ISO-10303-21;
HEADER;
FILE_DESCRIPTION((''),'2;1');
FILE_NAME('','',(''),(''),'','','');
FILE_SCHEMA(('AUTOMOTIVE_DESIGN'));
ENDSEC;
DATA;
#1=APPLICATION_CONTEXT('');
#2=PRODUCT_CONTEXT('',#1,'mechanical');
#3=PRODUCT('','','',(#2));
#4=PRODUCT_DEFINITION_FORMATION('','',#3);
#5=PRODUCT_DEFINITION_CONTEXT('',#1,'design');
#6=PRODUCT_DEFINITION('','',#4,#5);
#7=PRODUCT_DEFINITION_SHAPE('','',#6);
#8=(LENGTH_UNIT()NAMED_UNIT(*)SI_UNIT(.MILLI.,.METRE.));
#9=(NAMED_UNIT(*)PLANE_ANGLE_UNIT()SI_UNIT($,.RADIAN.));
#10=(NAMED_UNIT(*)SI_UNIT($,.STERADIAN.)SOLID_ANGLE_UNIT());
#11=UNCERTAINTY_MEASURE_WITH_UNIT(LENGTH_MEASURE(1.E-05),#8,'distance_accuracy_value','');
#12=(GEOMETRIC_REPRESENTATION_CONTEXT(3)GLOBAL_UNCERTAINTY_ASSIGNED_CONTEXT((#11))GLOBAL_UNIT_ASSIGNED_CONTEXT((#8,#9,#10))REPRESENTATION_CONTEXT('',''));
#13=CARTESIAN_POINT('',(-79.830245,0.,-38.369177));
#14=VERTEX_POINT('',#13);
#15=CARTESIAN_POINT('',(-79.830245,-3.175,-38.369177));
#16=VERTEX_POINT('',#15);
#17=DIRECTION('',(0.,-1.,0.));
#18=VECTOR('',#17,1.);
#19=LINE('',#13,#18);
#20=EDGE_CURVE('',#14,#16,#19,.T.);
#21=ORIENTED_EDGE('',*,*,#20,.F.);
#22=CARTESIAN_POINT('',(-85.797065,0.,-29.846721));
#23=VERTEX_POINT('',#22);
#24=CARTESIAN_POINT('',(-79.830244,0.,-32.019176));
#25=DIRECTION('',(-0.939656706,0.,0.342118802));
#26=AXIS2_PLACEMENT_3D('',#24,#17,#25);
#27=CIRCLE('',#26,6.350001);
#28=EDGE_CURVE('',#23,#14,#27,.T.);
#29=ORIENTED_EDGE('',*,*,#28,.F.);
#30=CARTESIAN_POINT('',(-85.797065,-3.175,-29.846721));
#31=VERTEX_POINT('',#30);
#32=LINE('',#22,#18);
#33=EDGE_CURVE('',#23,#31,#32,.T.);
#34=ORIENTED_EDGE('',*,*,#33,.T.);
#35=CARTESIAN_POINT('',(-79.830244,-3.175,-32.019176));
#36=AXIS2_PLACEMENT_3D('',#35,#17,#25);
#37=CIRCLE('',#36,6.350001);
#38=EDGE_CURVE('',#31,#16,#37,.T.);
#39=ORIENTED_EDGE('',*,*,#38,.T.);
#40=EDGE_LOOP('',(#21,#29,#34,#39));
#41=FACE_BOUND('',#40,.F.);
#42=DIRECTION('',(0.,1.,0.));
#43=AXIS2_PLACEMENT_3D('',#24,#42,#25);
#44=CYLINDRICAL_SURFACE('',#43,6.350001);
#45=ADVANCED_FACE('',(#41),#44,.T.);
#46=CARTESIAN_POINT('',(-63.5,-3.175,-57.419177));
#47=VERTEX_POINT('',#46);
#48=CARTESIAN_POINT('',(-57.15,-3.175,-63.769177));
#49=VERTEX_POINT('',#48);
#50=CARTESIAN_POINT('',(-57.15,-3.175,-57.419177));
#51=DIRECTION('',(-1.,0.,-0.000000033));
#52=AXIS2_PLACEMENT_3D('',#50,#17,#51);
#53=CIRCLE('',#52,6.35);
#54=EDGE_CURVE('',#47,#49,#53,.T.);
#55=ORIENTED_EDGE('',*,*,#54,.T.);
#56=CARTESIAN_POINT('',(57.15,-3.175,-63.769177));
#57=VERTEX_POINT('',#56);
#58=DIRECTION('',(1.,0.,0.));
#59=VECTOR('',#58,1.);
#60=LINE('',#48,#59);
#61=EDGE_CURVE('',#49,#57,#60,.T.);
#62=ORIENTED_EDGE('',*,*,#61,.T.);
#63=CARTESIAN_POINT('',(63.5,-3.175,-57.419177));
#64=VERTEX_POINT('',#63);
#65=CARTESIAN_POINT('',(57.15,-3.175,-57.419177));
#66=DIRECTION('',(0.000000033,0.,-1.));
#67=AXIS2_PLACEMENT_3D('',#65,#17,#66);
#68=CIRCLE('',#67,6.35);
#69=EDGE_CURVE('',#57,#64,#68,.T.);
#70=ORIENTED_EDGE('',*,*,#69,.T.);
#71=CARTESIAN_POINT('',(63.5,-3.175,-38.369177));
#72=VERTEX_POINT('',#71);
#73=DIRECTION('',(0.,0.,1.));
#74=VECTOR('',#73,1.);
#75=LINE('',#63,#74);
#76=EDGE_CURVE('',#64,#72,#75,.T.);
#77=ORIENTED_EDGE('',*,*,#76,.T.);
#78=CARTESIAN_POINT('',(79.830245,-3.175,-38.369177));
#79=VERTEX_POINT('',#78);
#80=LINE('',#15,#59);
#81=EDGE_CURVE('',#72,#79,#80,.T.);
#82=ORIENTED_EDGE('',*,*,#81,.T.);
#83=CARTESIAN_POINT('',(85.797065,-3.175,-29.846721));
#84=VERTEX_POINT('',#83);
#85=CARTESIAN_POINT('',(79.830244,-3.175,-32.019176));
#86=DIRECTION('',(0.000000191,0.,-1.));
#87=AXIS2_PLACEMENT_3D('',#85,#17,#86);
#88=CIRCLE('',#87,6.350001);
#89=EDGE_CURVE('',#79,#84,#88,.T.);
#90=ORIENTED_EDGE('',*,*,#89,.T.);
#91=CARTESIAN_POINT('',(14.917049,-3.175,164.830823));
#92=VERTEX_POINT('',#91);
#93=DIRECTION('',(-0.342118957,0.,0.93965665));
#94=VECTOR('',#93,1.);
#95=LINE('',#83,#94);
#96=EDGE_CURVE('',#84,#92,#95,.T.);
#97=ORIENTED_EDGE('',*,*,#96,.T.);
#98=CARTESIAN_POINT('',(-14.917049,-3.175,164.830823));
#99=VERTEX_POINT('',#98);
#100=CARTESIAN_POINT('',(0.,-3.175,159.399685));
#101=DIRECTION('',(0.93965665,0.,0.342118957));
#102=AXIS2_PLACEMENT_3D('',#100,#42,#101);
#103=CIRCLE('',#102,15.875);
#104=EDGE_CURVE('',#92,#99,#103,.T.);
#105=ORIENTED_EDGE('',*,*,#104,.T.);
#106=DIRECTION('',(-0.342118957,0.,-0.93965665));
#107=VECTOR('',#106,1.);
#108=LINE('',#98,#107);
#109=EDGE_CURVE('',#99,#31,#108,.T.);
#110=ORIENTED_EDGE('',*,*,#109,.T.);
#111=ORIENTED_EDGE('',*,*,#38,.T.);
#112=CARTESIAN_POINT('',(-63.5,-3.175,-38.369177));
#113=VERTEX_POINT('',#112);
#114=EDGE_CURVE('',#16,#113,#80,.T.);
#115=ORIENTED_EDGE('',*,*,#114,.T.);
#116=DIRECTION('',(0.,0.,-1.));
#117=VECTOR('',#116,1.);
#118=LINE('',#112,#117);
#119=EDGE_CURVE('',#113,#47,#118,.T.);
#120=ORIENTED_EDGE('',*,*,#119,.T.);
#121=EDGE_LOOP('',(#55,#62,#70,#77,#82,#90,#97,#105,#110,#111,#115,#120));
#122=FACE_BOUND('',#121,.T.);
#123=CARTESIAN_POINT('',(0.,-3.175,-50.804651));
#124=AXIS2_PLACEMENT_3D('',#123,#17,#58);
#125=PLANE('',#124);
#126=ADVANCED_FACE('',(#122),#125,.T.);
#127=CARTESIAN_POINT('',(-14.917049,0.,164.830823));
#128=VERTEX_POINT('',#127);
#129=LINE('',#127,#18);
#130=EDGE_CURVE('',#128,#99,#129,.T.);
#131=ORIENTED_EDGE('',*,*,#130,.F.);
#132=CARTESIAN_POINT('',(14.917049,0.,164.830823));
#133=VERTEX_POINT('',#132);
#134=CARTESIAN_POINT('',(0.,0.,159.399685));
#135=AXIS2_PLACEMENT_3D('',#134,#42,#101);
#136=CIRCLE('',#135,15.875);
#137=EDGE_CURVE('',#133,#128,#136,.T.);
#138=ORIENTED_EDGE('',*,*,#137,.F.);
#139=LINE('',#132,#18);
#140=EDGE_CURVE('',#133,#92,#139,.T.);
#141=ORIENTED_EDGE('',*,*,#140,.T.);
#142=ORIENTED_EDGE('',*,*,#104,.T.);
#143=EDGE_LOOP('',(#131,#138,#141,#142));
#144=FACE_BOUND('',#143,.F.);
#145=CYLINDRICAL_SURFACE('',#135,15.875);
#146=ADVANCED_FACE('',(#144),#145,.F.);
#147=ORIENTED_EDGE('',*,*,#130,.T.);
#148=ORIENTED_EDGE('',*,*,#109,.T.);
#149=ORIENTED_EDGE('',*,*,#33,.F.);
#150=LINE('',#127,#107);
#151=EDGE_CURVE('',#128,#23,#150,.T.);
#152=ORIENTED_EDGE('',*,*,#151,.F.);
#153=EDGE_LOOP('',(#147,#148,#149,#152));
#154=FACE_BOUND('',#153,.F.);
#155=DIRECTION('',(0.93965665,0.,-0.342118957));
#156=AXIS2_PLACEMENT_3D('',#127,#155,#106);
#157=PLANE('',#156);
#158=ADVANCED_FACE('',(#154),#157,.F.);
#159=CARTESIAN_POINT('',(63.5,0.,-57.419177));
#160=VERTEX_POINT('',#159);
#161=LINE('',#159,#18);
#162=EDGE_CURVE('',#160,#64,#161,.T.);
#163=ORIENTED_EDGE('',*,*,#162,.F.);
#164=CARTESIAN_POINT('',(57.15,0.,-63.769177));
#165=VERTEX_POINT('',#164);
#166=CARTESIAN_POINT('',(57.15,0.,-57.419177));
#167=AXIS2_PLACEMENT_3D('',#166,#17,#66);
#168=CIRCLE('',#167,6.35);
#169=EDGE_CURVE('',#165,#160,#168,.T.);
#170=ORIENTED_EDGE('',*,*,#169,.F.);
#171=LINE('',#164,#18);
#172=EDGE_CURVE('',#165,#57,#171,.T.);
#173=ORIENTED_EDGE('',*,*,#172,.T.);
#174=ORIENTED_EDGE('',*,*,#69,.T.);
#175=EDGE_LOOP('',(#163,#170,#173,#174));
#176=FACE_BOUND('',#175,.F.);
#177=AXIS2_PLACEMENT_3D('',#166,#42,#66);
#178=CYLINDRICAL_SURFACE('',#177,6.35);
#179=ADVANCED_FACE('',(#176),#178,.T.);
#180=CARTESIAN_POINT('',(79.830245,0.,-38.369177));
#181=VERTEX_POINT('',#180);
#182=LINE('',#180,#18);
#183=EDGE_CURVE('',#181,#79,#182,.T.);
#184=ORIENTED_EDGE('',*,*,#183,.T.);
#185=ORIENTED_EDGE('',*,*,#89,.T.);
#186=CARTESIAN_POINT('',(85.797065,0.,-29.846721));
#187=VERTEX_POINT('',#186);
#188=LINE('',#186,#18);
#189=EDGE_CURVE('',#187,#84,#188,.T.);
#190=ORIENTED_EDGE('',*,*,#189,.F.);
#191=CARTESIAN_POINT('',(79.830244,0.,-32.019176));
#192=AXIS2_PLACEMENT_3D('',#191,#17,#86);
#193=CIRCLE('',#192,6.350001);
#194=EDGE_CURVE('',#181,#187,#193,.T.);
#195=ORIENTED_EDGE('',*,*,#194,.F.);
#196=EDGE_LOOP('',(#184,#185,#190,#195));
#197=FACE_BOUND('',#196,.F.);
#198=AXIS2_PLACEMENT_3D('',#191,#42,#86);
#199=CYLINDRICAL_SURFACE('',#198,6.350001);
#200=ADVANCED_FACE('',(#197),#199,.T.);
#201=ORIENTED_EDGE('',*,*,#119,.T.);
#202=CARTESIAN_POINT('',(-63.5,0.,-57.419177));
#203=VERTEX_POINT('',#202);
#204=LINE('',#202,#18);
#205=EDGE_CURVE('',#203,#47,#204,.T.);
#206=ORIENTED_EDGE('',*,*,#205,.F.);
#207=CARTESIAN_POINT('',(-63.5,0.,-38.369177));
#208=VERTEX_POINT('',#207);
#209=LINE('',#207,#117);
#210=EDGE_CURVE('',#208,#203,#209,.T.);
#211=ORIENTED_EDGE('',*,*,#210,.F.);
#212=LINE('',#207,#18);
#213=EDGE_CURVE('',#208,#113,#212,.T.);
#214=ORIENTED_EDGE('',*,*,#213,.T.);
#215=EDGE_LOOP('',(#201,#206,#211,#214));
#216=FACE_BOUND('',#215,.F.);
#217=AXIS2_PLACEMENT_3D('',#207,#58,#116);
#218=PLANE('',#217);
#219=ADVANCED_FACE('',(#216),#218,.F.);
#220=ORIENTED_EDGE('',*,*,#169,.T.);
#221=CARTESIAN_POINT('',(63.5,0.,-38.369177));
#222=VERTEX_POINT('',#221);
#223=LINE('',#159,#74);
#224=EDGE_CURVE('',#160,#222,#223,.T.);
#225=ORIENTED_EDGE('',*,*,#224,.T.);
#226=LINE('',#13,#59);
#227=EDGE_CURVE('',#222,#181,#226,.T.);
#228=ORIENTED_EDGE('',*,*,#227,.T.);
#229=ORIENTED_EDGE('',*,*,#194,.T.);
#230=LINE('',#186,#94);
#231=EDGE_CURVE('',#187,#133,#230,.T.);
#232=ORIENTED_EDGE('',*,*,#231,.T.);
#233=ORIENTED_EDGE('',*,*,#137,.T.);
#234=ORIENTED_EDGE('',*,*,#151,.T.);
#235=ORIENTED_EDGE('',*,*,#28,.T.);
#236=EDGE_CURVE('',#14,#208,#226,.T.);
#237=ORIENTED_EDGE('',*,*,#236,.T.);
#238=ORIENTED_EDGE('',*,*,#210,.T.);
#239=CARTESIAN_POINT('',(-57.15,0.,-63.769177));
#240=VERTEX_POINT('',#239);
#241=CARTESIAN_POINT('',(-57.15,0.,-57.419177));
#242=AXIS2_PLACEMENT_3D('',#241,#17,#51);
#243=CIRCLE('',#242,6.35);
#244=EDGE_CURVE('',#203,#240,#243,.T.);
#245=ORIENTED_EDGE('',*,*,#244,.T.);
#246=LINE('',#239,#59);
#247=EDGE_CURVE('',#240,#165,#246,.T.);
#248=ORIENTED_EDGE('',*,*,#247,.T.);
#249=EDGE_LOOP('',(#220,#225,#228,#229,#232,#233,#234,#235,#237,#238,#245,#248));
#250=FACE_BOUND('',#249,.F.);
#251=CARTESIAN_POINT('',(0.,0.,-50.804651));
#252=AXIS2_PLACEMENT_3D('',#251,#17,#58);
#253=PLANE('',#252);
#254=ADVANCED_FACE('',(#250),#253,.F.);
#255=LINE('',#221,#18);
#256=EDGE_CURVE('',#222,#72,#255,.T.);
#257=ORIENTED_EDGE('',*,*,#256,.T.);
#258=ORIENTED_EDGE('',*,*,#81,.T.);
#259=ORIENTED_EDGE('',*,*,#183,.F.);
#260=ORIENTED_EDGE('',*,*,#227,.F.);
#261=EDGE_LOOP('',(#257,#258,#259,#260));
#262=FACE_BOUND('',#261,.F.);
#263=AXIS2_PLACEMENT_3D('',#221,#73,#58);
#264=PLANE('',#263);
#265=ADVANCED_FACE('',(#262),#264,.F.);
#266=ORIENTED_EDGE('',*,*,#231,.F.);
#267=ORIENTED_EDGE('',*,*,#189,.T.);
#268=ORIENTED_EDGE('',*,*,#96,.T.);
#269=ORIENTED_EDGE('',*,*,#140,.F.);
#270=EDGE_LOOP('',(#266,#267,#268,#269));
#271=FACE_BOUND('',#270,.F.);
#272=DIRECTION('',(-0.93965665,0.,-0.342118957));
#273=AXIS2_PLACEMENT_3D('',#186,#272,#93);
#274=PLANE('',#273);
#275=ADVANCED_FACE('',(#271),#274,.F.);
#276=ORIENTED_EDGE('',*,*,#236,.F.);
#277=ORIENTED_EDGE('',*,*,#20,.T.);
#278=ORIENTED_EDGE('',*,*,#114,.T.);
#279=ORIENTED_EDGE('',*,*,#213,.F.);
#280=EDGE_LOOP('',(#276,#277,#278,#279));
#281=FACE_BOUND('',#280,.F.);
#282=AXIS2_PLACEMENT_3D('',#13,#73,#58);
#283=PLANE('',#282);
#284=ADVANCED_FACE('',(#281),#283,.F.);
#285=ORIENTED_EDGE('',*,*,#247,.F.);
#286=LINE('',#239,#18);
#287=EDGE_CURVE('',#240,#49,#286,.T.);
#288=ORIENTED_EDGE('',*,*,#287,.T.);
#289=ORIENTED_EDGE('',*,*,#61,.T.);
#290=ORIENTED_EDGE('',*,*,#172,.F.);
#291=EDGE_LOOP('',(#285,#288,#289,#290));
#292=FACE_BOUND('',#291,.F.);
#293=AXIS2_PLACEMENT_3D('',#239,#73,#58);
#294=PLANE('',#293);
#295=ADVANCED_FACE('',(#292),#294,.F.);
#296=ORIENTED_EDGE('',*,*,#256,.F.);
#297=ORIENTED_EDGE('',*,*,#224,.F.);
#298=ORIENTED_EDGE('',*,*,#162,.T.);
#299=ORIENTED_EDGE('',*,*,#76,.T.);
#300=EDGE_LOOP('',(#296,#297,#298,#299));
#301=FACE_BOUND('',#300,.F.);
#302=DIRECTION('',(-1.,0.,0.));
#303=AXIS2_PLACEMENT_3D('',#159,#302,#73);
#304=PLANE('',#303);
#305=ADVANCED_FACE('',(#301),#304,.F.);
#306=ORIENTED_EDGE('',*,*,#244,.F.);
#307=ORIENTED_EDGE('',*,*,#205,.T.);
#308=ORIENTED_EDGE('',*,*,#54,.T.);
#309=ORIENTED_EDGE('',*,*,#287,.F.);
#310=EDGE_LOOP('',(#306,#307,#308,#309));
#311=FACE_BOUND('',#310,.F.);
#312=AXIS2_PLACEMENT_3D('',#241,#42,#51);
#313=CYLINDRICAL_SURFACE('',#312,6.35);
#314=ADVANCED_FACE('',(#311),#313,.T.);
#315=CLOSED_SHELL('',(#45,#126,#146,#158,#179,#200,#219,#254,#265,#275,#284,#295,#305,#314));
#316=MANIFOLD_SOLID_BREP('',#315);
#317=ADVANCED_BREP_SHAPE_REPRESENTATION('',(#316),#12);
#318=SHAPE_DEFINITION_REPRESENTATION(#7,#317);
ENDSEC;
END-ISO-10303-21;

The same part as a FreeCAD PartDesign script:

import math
import FreeCAD as App
import Part
import Sketcher

V = App.Vector
Q = App.Units.Quantity

doc = App.newDocument("Part")
body = doc.addObject("PartDesign::Body", "Body")

# Sketch on XZ plane
sketch1 = body.newObject("Sketcher::SketchObject", "Sketch")
sketch1.AttachmentSupport = (doc.getObject("XZ_Plane"), [""])
sketch1.MapMode = "FlatFace"
sketch1.addGeometry(Part.LineSegment(V(-57, -64, 0), V(57, -64, 0)), False)
sketch1.addGeometry(Part.ArcOfCircle(Part.Circle(V(57, -57, 0), V(0, 0, 1), 6), math.radians(-90), math.radians(0)), False)
sketch1.addGeometry(Part.LineSegment(V(64, -57, 0), V(64, -38, 0)), False)
sketch1.addGeometry(Part.LineSegment(V(64, -38, 0), V(80, -38, 0)), False)
sketch1.addGeometry(Part.ArcOfCircle(Part.Circle(V(80, -32, 0), V(0, 0, 1), 6), math.radians(-90), math.radians(20)), False)
sketch1.addGeometry(Part.LineSegment(V(86, -30, 0), V(15, 165, 0)), False)
sketch1.addGeometry(Part.ArcOfCircle(Part.Circle(V(0, 159, 0), V(0, 0, 1), 16), math.radians(160), math.radians(380)), False)
sketch1.addGeometry(Part.LineSegment(V(-15, 165, 0), V(-86, -30, 0)), False)
sketch1.addGeometry(Part.ArcOfCircle(Part.Circle(V(-80, -32, 0), V(0, 0, 1), 6), math.radians(160), math.radians(270)), False)
sketch1.addGeometry(Part.LineSegment(V(-80, -38, 0), V(-64, -38, 0)), False)
sketch1.addGeometry(Part.LineSegment(V(-64, -38, 0), V(-64, -57, 0)), False)
sketch1.addGeometry(Part.ArcOfCircle(Part.Circle(V(-57, -57, 0), V(0, 0, 1), 6), math.radians(-180), math.radians(-90)), False)
sketch1.addConstraint(Sketcher.Constraint("Tangent", 0, 2, 1, 1))
sketch1.addConstraint(Sketcher.Constraint("Tangent", 1, 2, 2, 1))
sketch1.addConstraint(Sketcher.Constraint("Coincident", 2, 2, 3, 1))
sketch1.addConstraint(Sketcher.Constraint("Tangent", 3, 2, 4, 1))
sketch1.addConstraint(Sketcher.Constraint("Tangent", 4, 2, 5, 1))
sketch1.addConstraint(Sketcher.Constraint("Tangent", 5, 2, 6, 2))
sketch1.addConstraint(Sketcher.Constraint("Tangent", 6, 1, 7, 1))
sketch1.addConstraint(Sketcher.Constraint("Tangent", 7, 2, 8, 1))
sketch1.addConstraint(Sketcher.Constraint("Tangent", 8, 2, 9, 1))
sketch1.addConstraint(Sketcher.Constraint("Coincident", 9, 2, 10, 1))
sketch1.addConstraint(Sketcher.Constraint("Tangent", 10, 2, 11, 1))
sketch1.addConstraint(Sketcher.Constraint("Tangent", 11, 2, 0, 1))
sketch1.addConstraint(Sketcher.Constraint("Horizontal", 0))
sketch1.addConstraint(Sketcher.Constraint("Vertical", 2))
sketch1.addConstraint(Sketcher.Constraint("Horizontal", 3))
sketch1.addConstraint(Sketcher.Constraint("Horizontal", 9))
sketch1.addConstraint(Sketcher.Constraint("Vertical", 10))
sketch1.addConstraint(Sketcher.Constraint("Equal", 1, 4))
sketch1.addConstraint(Sketcher.Constraint("Equal", 4, 8))
sketch1.addConstraint(Sketcher.Constraint("Equal", 8, 11))
sketch1.addConstraint(Sketcher.Constraint("Symmetric", 4, 3, 8, 3, -2))
sketch1.addConstraint(Sketcher.Constraint("PointOnObject", 6, 3, -2))
sketch1.addConstraint(Sketcher.Constraint("Equal", 3, 9))
sketch1.addConstraint(Sketcher.Constraint("Radius", 1, Q("0.25 in")))
sketch1.addConstraint(Sketcher.Constraint("DistanceX", 0, 1, 0, 2, Q("4.5 in")))
sketch1.addConstraint(Sketcher.Constraint("Radius", 6, Q("0.625 in")))
sketch1.addConstraint(Sketcher.Constraint("DistanceY", 1, 3, 4, 3, Q("1 in")))
sketch1.addConstraint(Sketcher.Constraint("DistanceY", 2, 2, 5, 2, Q("8 in")))
sketch1.addConstraint(Sketcher.Constraint("DistanceX", 6, 1, 5, 2, Q("29.834098 mm")))
sketch1.addConstraint(Sketcher.Constraint("DistanceY", 4, 2, -1, 1, Q("29.846721 mm")))
pad1 = body.newObject("PartDesign::Pad", "Pad")
pad1.Profile = sketch1
pad1.Length = Q("0.125 in")

doc.recompute()
